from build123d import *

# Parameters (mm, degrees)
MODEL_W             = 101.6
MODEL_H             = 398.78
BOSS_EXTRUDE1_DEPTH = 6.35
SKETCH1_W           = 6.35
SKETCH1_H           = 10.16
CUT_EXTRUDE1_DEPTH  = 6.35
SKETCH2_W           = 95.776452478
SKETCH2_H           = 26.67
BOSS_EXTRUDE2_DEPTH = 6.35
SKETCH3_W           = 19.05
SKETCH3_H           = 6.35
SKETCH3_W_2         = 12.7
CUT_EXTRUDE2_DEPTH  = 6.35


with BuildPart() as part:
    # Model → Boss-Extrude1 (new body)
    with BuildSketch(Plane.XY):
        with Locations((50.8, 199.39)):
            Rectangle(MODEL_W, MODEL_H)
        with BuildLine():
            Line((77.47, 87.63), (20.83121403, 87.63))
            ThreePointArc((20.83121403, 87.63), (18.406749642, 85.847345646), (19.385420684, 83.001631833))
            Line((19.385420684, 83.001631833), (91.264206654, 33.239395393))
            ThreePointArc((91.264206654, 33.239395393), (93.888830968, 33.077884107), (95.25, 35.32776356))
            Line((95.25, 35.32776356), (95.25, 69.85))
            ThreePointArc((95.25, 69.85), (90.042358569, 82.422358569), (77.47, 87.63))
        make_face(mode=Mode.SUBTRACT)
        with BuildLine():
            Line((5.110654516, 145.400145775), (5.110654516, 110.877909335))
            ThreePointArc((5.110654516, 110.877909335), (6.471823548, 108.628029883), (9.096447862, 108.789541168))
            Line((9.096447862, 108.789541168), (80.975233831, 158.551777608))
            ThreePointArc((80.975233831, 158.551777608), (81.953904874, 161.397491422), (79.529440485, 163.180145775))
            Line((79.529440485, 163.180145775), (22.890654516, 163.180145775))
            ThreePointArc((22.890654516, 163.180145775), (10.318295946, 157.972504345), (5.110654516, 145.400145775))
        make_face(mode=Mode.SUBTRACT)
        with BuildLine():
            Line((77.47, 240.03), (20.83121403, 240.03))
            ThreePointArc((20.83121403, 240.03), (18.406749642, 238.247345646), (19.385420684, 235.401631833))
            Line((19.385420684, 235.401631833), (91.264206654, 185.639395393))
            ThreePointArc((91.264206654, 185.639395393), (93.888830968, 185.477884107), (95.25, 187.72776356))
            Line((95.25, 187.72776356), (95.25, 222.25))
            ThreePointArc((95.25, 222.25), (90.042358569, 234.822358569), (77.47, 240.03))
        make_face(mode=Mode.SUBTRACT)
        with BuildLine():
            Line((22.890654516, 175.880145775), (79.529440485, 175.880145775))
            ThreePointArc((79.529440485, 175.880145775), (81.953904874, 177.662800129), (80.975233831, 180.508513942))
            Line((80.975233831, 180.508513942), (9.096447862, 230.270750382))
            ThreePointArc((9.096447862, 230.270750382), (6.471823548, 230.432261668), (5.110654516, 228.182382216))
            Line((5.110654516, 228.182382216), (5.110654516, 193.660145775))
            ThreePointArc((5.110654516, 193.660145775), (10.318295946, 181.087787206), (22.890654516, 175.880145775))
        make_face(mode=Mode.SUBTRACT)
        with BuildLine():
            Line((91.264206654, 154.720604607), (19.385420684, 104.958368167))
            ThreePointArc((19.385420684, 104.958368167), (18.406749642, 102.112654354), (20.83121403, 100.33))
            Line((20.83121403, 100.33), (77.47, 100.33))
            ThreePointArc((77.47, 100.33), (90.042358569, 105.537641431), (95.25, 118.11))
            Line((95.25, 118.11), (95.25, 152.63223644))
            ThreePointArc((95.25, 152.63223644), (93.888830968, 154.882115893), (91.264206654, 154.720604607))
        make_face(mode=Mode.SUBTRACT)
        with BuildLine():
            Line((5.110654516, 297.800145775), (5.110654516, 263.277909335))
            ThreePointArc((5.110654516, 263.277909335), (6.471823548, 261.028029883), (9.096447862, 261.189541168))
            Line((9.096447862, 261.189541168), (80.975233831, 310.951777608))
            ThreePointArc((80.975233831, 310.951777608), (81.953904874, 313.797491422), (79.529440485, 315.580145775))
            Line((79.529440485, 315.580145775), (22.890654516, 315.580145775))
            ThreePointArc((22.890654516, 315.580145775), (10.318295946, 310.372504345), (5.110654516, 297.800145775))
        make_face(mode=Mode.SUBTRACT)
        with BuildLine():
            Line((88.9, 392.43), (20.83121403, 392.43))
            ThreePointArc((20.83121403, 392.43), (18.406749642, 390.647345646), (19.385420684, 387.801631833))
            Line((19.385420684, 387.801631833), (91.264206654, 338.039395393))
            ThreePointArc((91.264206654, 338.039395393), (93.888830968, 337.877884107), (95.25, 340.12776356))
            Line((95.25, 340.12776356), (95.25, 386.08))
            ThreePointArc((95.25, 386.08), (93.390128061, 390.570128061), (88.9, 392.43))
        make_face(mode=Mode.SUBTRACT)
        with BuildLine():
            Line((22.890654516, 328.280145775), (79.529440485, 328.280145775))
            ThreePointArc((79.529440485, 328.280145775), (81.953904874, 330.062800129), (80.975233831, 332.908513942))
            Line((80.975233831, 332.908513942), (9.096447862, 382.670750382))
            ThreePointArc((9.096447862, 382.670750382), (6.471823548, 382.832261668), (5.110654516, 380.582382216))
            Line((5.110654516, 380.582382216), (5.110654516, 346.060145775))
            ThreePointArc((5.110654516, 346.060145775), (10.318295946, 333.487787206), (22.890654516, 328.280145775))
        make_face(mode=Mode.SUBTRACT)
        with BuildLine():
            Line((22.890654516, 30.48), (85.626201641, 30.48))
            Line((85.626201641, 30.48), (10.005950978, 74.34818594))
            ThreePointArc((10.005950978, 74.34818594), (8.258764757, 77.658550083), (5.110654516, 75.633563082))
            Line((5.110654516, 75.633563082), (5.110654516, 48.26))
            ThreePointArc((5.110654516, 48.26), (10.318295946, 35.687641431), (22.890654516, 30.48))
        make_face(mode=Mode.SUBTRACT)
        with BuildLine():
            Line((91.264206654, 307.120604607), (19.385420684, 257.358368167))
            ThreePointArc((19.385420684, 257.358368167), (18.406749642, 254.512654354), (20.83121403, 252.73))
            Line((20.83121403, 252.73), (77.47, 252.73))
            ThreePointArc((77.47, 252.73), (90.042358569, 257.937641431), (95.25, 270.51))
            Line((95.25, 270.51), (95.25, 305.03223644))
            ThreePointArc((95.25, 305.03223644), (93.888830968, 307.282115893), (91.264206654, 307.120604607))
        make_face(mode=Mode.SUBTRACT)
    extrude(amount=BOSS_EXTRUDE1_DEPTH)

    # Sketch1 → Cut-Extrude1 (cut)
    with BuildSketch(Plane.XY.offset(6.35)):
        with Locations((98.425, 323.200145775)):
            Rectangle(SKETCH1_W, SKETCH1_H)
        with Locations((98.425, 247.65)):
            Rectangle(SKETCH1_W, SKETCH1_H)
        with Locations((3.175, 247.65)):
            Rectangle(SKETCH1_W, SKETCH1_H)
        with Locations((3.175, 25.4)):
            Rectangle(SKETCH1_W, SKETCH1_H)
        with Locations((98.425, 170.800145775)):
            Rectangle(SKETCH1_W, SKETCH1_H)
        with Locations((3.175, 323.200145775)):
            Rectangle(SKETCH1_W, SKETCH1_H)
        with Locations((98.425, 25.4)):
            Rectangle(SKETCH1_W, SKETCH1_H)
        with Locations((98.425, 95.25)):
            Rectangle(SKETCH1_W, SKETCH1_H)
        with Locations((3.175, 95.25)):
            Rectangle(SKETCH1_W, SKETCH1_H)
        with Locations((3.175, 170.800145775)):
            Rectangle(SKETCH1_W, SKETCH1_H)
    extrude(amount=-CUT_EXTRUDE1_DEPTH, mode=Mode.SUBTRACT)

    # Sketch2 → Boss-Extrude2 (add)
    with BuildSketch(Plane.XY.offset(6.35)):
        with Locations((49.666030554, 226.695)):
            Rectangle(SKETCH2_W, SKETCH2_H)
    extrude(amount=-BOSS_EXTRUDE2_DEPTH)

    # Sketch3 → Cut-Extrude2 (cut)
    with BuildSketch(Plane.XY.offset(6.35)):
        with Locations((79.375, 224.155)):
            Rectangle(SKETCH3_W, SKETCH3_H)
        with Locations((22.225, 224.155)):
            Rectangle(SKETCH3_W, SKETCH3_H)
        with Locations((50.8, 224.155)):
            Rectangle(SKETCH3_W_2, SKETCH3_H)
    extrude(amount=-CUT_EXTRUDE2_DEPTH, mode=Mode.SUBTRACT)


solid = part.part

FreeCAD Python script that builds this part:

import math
import FreeCAD as App
import Part
import Sketcher
Q = App.Units.Quantity

doc = App.newDocument("Part")
params = doc.addObject("Spreadsheet::Sheet", "Params")
for row, (alias, value) in enumerate([
    ("sketch1_radius", "0.7 in"),
    ("sketch1_radius2", "0.1 in"),
    ("sketch1_width", "4 in"),
    ("sketch1_radius3", "0.25 in"),
    ("sketch1_height", "15.7 in"),
    ("pad1_length", "0.25 in"),
    ("sketch2_height", "0.4 in"),
    ("sketch2_width", "0.25 in"),
    ("pocket1_length", "0.25 in"),
    ("sketch3_height", "1.05 in"),
    ("pad2_length", "0.25 in"),
    ("sketch4_width", "0.5 in"),
    ("sketch4_height", "0.25 in"),
    ("pocket2_length", "0.25 in"),
], start=1):
    params.set(f"A{row}", alias)
    params.set(f"B{row}", "=" + value)
    params.setAlias(f"B{row}", alias)

body = doc.addObject("PartDesign::Body", "Body")

# Sketch on XY plane
sketch1 = body.newObject("Sketcher::SketchObject", "Sketch")
sketch1.AttachmentSupport = (doc.getObject("XY_Plane"), [""])
sketch1.MapMode = "FlatFace"
sketch1.addGeometry([
    Part.LineSegment(App.Vector(0, 398.8, 0), App.Vector(0, 0, 0)),  # 0
    Part.LineSegment(App.Vector(0, 0, 0), App.Vector(101.6, 0, 0)),  # 1
    Part.LineSegment(App.Vector(101.6, 0, 0), App.Vector(101.6, 398.8, 0)),  # 2
    Part.LineSegment(App.Vector(101.6, 398.8, 0), App.Vector(0, 398.8, 0)),  # 3
    Part.LineSegment(App.Vector(85.6, 30.5, 0), App.Vector(22.9, 30.5, 0)),  # 4
    Part.ArcOfCircle(Part.Circle(App.Vector(22.9, 48.3, 0), App.Vector(0, 0, 1), 17.8), math.radians(180), math.radians(270)),  # 5
    Part.LineSegment(App.Vector(5.1, 48.3, 0), App.Vector(5.1, 75.6, 0)),  # 6
    Part.ArcOfCircle(Part.Circle(App.Vector(7.6, 75.2, 0), App.Vector(0, 0, 1), 2.5), math.radians(-20), math.radians(170)),  # 7
    Part.LineSegment(App.Vector(10, 74.3, 0), App.Vector(85.6, 30.5, 0)),  # 8
    Part.LineSegment(App.Vector(5.1, 110.9, 0), App.Vector(5.1, 145.4, 0)),  # 9
    Part.ArcOfCircle(Part.Circle(App.Vector(22.9, 145.4, 0), App.Vector(0, 0, 1), 17.8), math.radians(90), math.radians(180)),  # 10
    Part.LineSegment(App.Vector(22.9, 163.2, 0), App.Vector(79.5, 163.2, 0)),  # 11
    Part.ArcOfCircle(Part.Circle(App.Vector(79.5, 160.6, 0), App.Vector(0, 0, 1), 2.5), math.radians(-55), math.radians(90)),  # 12
    Part.LineSegment(App.Vector(81, 158.6, 0), App.Vector(9.1, 108.8, 0)),  # 13
    Part.ArcOfCircle(Part.Circle(App.Vector(7.7, 110.9, 0), App.Vector(0, 0, 1), 2.5), math.radians(180), math.radians(305)),  # 14
    Part.LineSegment(App.Vector(79.5, 175.9, 0), App.Vector(22.9, 175.9, 0)),  # 15
    Part.ArcOfCircle(Part.Circle(App.Vector(22.9, 193.7, 0), App.Vector(0, 0, 1), 17.8), math.radians(180), math.radians(270)),  # 16
    Part.LineSegment(App.Vector(5.1, 193.7, 0), App.Vector(5.1, 228.2, 0)),  # 17
    Part.ArcOfCircle(Part.Circle(App.Vector(7.7, 228.2, 0), App.Vector(0, 0, 1), 2.5), math.radians(55), math.radians(180)),  # 18
    Part.LineSegment(App.Vector(9.1, 230.3, 0), App.Vector(81, 180.5, 0)),  # 19
    Part.ArcOfCircle(Part.Circle(App.Vector(79.5, 178.4, 0), App.Vector(0, 0, 1), 2.5), math.radians(-90), math.radians(55)),  # 20
    Part.LineSegment(App.Vector(20.8, 87.6, 0), App.Vector(77.5, 87.6, 0)),  # 21
    Part.ArcOfCircle(Part.Circle(App.Vector(77.5, 69.8, 0), App.Vector(0, 0, 1), 17.8), math.radians(0), math.radians(90)),  # 22
    Part.LineSegment(App.Vector(95.2, 69.8, 0), App.Vector(95.2, 35.3, 0)),  # 23
    Part.ArcOfCircle(Part.Circle(App.Vector(92.7, 35.3, 0), App.Vector(0, 0, 1), 2.5), math.radians(-125), math.radians(0)),  # 24
    Part.LineSegment(App.Vector(91.3, 33.2, 0), App.Vector(19.4, 83, 0)),  # 25
    Part.ArcOfCircle(Part.Circle(App.Vector(20.8, 85.1, 0), App.Vector(0, 0, 1), 2.5), math.radians(90), math.radians(235)),  # 26
    Part.LineSegment(App.Vector(19.4, 105, 0), App.Vector(91.3, 154.7, 0)),  # 27
    Part.ArcOfCircle(Part.Circle(App.Vector(92.7, 152.6, 0), App.Vector(0, 0, 1), 2.5), math.radians(0), math.radians(125)),  # 28
    Part.LineSegment(App.Vector(95.2, 152.6, 0), App.Vector(95.2, 118.1, 0)),  # 29
    Part.ArcOfCircle(Part.Circle(App.Vector(77.5, 118.1, 0), App.Vector(0, 0, 1), 17.8), math.radians(-90), math.radians(0)),  # 30
    Part.LineSegment(App.Vector(77.5, 100.3, 0), App.Vector(20.8, 100.3, 0)),  # 31
    Part.ArcOfCircle(Part.Circle(App.Vector(20.8, 102.9, 0), App.Vector(0, 0, 1), 2.5), math.radians(125), math.radians(270)),  # 32
    Part.LineSegment(App.Vector(5.1, 263.3, 0), App.Vector(5.1, 297.8, 0)),  # 33
    Part.ArcOfCircle(Part.Circle(App.Vector(22.9, 297.8, 0), App.Vector(0, 0, 1), 17.8), math.radians(90), math.radians(180)),  # 34
    Part.LineSegment(App.Vector(22.9, 315.6, 0), App.Vector(79.5, 315.6, 0)),  # 35
    Part.ArcOfCircle(Part.Circle(App.Vector(79.5, 313, 0), App.Vector(0, 0, 1), 2.5), math.radians(-55), math.radians(90)),  # 36
    Part.LineSegment(App.Vector(81, 311, 0), App.Vector(9.1, 261.2, 0)),  # 37
    Part.ArcOfCircle(Part.Circle(App.Vector(7.7, 263.3, 0), App.Vector(0, 0, 1), 2.5), math.radians(180), math.radians(305)),  # 38
    Part.LineSegment(App.Vector(79.5, 328.3, 0), App.Vector(22.9, 328.3, 0)),  # 39
    Part.ArcOfCircle(Part.Circle(App.Vector(22.9, 346.1, 0), App.Vector(0, 0, 1), 17.8), math.radians(180), math.radians(270)),  # 40
    Part.LineSegment(App.Vector(5.1, 346.1, 0), App.Vector(5.1, 380.6, 0)),  # 41
    Part.ArcOfCircle(Part.Circle(App.Vector(7.7, 380.6, 0), App.Vector(0, 0, 1), 2.5), math.radians(55), math.radians(180)),  # 42
    Part.LineSegment(App.Vector(9.1, 382.7, 0), App.Vector(81, 332.9, 0)),  # 43
    Part.ArcOfCircle(Part.Circle(App.Vector(79.5, 330.8, 0), App.Vector(0, 0, 1), 2.5), math.radians(-90), math.radians(55)),  # 44
    Part.LineSegment(App.Vector(20.8, 240, 0), App.Vector(77.5, 240, 0)),  # 45
    Part.ArcOfCircle(Part.Circle(App.Vector(77.5, 222.2, 0), App.Vector(0, 0, 1), 17.8), math.radians(0), math.radians(90)),  # 46
    Part.LineSegment(App.Vector(95.2, 222.2, 0), App.Vector(95.2, 187.7, 0)),  # 47
    Part.ArcOfCircle(Part.Circle(App.Vector(92.7, 187.7, 0), App.Vector(0, 0, 1), 2.5), math.radians(-125), math.radians(0)),  # 48
    Part.LineSegment(App.Vector(91.3, 185.6, 0), App.Vector(19.4, 235.4, 0)),  # 49
    Part.ArcOfCircle(Part.Circle(App.Vector(20.8, 237.5, 0), App.Vector(0, 0, 1), 2.5), math.radians(90), math.radians(235)),  # 50
    Part.LineSegment(App.Vector(19.4, 257.4, 0), App.Vector(91.3, 307.1, 0)),  # 51
    Part.ArcOfCircle(Part.Circle(App.Vector(92.7, 305, 0), App.Vector(0, 0, 1), 2.5), math.radians(0), math.radians(125)),  # 52
    Part.LineSegment(App.Vector(95.2, 305, 0), App.Vector(95.2, 270.5, 0)),  # 53
    Part.ArcOfCircle(Part.Circle(App.Vector(77.5, 270.5, 0), App.Vector(0, 0, 1), 17.8), math.radians(-90), math.radians(0)),  # 54
    Part.LineSegment(App.Vector(77.5, 252.7, 0), App.Vector(20.8, 252.7, 0)),  # 55
    Part.ArcOfCircle(Part.Circle(App.Vector(20.8, 255.3, 0), App.Vector(0, 0, 1), 2.5), math.radians(125), math.radians(270)),  # 56
    Part.LineSegment(App.Vector(20.8, 392.4, 0), App.Vector(88.9, 392.4, 0)),  # 57
    Part.ArcOfCircle(Part.Circle(App.Vector(88.9, 386.1, 0), App.Vector(0, 0, 1), 6.3), math.radians(0), math.radians(90)),  # 58
    Part.LineSegment(App.Vector(95.2, 386.1, 0), App.Vector(95.2, 340.1, 0)),  # 59
    Part.ArcOfCircle(Part.Circle(App.Vector(92.7, 340.1, 0), App.Vector(0, 0, 1), 2.5), math.radians(-125), math.radians(0)),  # 60
    Part.LineSegment(App.Vector(91.3, 338, 0), App.Vector(19.4, 387.8, 0)),  # 61
    Part.ArcOfCircle(Part.Circle(App.Vector(20.8, 389.9, 0), App.Vector(0, 0, 1), 2.5), math.radians(90), math.radians(235)),  # 62
], False)
sketch1.addConstraint([
    Sketcher.Constraint("Coincident", 0, 2, 1, 1),
    Sketcher.Constraint("Coincident", 1, 2, 2, 1),
    Sketcher.Constraint("Coincident", 2, 2, 3, 1),
    Sketcher.Constraint("Coincident", 3, 2, 0, 1),
    Sketcher.Constraint("Tangent", 4, 2, 5, 2),
    Sketcher.Constraint("Tangent", 5, 1, 6, 1),
    Sketcher.Constraint("Coincident", 6, 2, 7, 2),
    Sketcher.Constraint("Coincident", 7, 1, 8, 1),
    Sketcher.Constraint("Coincident", 8, 2, 4, 1),
    Sketcher.Constraint("Tangent", 9, 2, 10, 2),
    Sketcher.Constraint("Tangent", 10, 1, 11, 1),
    Sketcher.Constraint("Tangent", 11, 2, 12, 2),
    Sketcher.Constraint("Tangent", 12, 1, 13, 1),
    Sketcher.Constraint("Tangent", 13, 2, 14, 2),
    Sketcher.Constraint("Tangent", 14, 1, 9, 1),
    Sketcher.Constraint("Tangent", 15, 2, 16, 2),
    Sketcher.Constraint("Tangent", 16, 1, 17, 1),
    Sketcher.Constraint("Tangent", 17, 2, 18, 2),
    Sketcher.Constraint("Tangent", 18, 1, 19, 1),
    Sketcher.Constraint("Tangent", 19, 2, 20, 2),
    Sketcher.Constraint("Tangent", 20, 1, 15, 1),
    Sketcher.Constraint("Tangent", 21, 2, 22, 2),
    Sketcher.Constraint("Tangent", 22, 1, 23, 1),
    Sketcher.Constraint("Tangent", 23, 2, 24, 2),
    Sketcher.Constraint("Tangent", 24, 1, 25, 1),
    Sketcher.Constraint("Tangent", 25, 2, 26, 2),
    Sketcher.Constraint("Tangent", 26, 1, 21, 1),
    Sketcher.Constraint("Tangent", 27, 2, 28, 2),
    Sketcher.Constraint("Tangent", 28, 1, 29, 1),
    Sketcher.Constraint("Tangent", 29, 2, 30, 2),
    Sketcher.Constraint("Tangent", 30, 1, 31, 1),
    Sketcher.Constraint("Tangent", 31, 2, 32, 2),
    Sketcher.Constraint("Tangent", 32, 1, 27, 1),
    Sketcher.Constraint("Tangent", 33, 2, 34, 2),
    Sketcher.Constraint("Tangent", 34, 1, 35, 1),
    Sketcher.Constraint("Tangent", 35, 2, 36, 2),
    Sketcher.Constraint("Tangent", 36, 1, 37, 1),
    Sketcher.Constraint("Tangent", 37, 2, 38, 2),
    Sketcher.Constraint("Tangent", 38, 1, 33, 1),
    Sketcher.Constraint("Tangent", 39, 2, 40, 2),
    Sketcher.Constraint("Tangent", 40, 1, 41, 1),
    Sketcher.Constraint("Tangent", 41, 2, 42, 2),
    Sketcher.Constraint("Tangent", 42, 1, 43, 1),
    Sketcher.Constraint("Tangent", 43, 2, 44, 2),
    Sketcher.Constraint("Tangent", 44, 1, 39, 1),
    Sketcher.Constraint("Tangent", 45, 2, 46, 2),
    Sketcher.Constraint("Tangent", 46, 1, 47, 1),
    Sketcher.Constraint("Tangent", 47, 2, 48, 2),
    Sketcher.Constraint("Tangent", 48, 1, 49, 1),
    Sketcher.Constraint("Tangent", 49, 2, 50, 2),
    Sketcher.Constraint("Tangent", 50, 1, 45, 1),
    Sketcher.Constraint("Tangent", 51, 2, 52, 2),
    Sketcher.Constraint("Tangent", 52, 1, 53, 1),
    Sketcher.Constraint("Tangent", 53, 2, 54, 2),
    Sketcher.Constraint("Tangent", 54, 1, 55, 1),
    Sketcher.Constraint("Tangent", 55, 2, 56, 2),
    Sketcher.Constraint("Tangent", 56, 1, 51, 1),
    Sketcher.Constraint("Tangent", 57, 2, 58, 2),
    Sketcher.Constraint("Tangent", 58, 1, 59, 1),
    Sketcher.Constraint("Tangent", 59, 2, 60, 2),
    Sketcher.Constraint("Tangent", 60, 1, 61, 1),
    Sketcher.Constraint("Tangent", 61, 2, 62, 2),
    Sketcher.Constraint("Tangent", 62, 1, 57, 1),
    Sketcher.Constraint("Vertical", 0),
    Sketcher.Constraint("Horizontal", 1),
    Sketcher.Constraint("Vertical", 2),
    Sketcher.Constraint("Horizontal", 3),
    Sketcher.Constraint("Horizontal", 4),
    Sketcher.Constraint("Vertical", 6),
    Sketcher.Constraint("Vertical", 9),
    Sketcher.Constraint("Horizontal", 11),
    Sketcher.Constraint("Horizontal", 15),
    Sketcher.Constraint("Vertical", 17),
    Sketcher.Constraint("Horizontal", 21),
    Sketcher.Constraint("Vertical", 23),
    Sketcher.Constraint("Vertical", 29),
    Sketcher.Constraint("Horizontal", 31),
    Sketcher.Constraint("Vertical", 33),
    Sketcher.Constraint("Horizontal", 35),
    Sketcher.Constraint("Horizontal", 39),
    Sketcher.Constraint("Vertical", 41),
    Sketcher.Constraint("Horizontal", 45),
    Sketcher.Constraint("Vertical", 47),
    Sketcher.Constraint("Vertical", 53),
    Sketcher.Constraint("Horizontal", 55),
    Sketcher.Constraint("Horizontal", 57),
    Sketcher.Constraint("Vertical", 59),
    Sketcher.Constraint("Coincident", 0, 2, -1, 1),
    Sketcher.Constraint("Equal", 5, 10),
    Sketcher.Constraint("Equal", 7, 12),
    Sketcher.Constraint("Equal", 12, 14),
    Sketcher.Constraint("Equal", 10, 16),
    Sketcher.Constraint("Equal", 14, 18),
    Sketcher.Constraint("Equal", 18, 20),
    Sketcher.Constraint("Equal", 16, 22),
    Sketcher.Constraint("Equal", 20, 24),
    Sketcher.Constraint("Equal", 24, 26),
    Sketcher.Constraint("Equal", 26, 28),
    Sketcher.Constraint("Equal", 22, 30),
    Sketcher.Constraint("Equal", 28, 32),
    Sketcher.Constraint("Equal", 30, 34),
    Sketcher.Constraint("Equal", 32, 36),
    Sketcher.Constraint("Equal", 36, 38),
    Sketcher.Constraint("Equal", 34, 40),
    Sketcher.Constraint("Equal", 38, 42),
    Sketcher.Constraint("Equal", 42, 44),
    Sketcher.Constraint("Equal", 40, 46),
    Sketcher.Constraint("Equal", 44, 48),
    Sketcher.Constraint("Equal", 48, 50),
    Sketcher.Constraint("Equal", 50, 52),
    Sketcher.Constraint("Equal", 46, 54),
    Sketcher.Constraint("Equal", 52, 56),
    Sketcher.Constraint("Equal", 56, 60),
    Sketcher.Constraint("Equal", 60, 62),
    Sketcher.Constraint("Parallel", 19, 25),
    Sketcher.Constraint("Parallel", 13, 27),
    Sketcher.Constraint("Parallel", 27, 37),
    Sketcher.Constraint("Parallel", 25, 43),
    Sketcher.Constraint("Parallel", 43, 49),
    Sketcher.Constraint("Parallel", 37, 51),
    Sketcher.Constraint("Parallel", 49, 61),
    Sketcher.Constraint("Vertical", 5, 3, 10, 3),
    Sketcher.Constraint("Vertical", 10, 3, 16, 3),
    Sketcher.Constraint("Vertical", 12, 3, 20, 3),
    Sketcher.Constraint("Vertical", 24, 3, 28, 3),
    Sketcher.Constraint("Vertical", 26, 3, 32, 3),
    Sketcher.Constraint("Vertical", 16, 3, 34, 3),
    Sketcher.Constraint("Vertical", 20, 3, 36, 3),
    Sketcher.Constraint("Vertical", 34, 3, 40, 3),
    Sketcher.Constraint("Vertical", 36, 3, 44, 3),
    Sketcher.Constraint("Vertical", 30, 3, 46, 3),
    Sketcher.Constraint("Vertical", 32, 3, 50, 3),
    Sketcher.Constraint("Vertical", 48, 3, 52, 3),
    Sketcher.Constraint("Vertical", 50, 3, 56, 3),
    Sketcher.Constraint("Vertical", 52, 3, 60, 3),
    Sketcher.Constraint("Vertical", 56, 3, 62, 3),
    Sketcher.Constraint("Vertical", 13, 2, 18, 1),
    Sketcher.Constraint("Equal", 15, 21),
    Sketcher.Constraint("Equal", 8, 13),
    Sketcher.Constraint("Radius", 5, Q("0.7 in")),
    Sketcher.Constraint("Radius", 7, Q("0.1 in")),
    Sketcher.Constraint("DistanceX", 1, 1, 1, 2, Q("4 in")),
    Sketcher.Constraint("Radius", 58, Q("0.25 in")),
    Sketcher.Constraint("DistanceY", 0, 2, 0, 1, Q("15.7 in")),
    Sketcher.Constraint("DistanceY", -1, 1, 5, 3, Q("1.9 in")),
    Sketcher.Constraint("DistanceX", -1, 1, 58, 3, Q("3.5 in")),
    Sketcher.Constraint("DistanceY", -1, 1, 58, 3, Q("15.2 in")),
    Sketcher.Constraint("DistanceY", -1, 1, 22, 3, Q("2.75 in")),
    Sketcher.Constraint("DistanceY", -1, 1, 30, 3, Q("4.65 in")),
    Sketcher.Constraint("DistanceY", -1, 1, 46, 3, Q("8.75 in")),
    Sketcher.Constraint("DistanceY", -1, 1, 54, 3, Q("10.65 in")),
    Sketcher.Constraint("DistanceX", -1, 1, 8, 2, Q("85.626202 mm")),
    Sketcher.Constraint("Distance", 8, Q("87.423338 mm")),
    Sketcher.Constraint("DistanceX", 4, 2, 4, 1, Q("62.735547 mm")),
    Sketcher.Constraint("DistanceX", 11, 1, 11, 2, Q("56.638786 mm")),
    Sketcher.Constraint("DistanceY", 6, 1, 6, 2, Q("27.373563 mm")),
    Sketcher.Constraint("DistanceY", -1, 1, 7, 3, Q("75.201828 mm")),
    Sketcher.Constraint("DistanceY", -1, 1, 14, 3, Q("110.877909 mm")),
    Sketcher.Constraint("DistanceY", -1, 1, 38, 3, Q("263.277909 mm")),
    Sketcher.Constraint("DistanceY", -1, 1, 18, 1, Q("230.27075 mm")),
    Sketcher.Constraint("DistanceY", -1, 1, 42, 1, Q("382.67075 mm")),
])
sketch1.setExpression("Constraints[139]", "Params.sketch1_radius")
sketch1.setExpression("Constraints[140]", "Params.sketch1_radius2")
sketch1.setExpression("Constraints[141]", "Params.sketch1_width")
sketch1.setExpression("Constraints[142]", "Params.sketch1_radius3")
sketch1.setExpression("Constraints[143]", "Params.sketch1_height")
pad1 = body.newObject("PartDesign::Pad", "Pad")
pad1.Profile = sketch1
pad1.setExpression("Length", "Params.pad1_length")

# Sketch on XY plane
sketch2 = body.newObject("Sketcher::SketchObject", "Sketch001")
sketch2.AttachmentSupport = (doc.getObject("XY_Plane"), [""])
sketch2.MapMode = "FlatFace"
sketch2.AttachmentOffset = App.Placement(App.Vector(0, 0, 0.25 * 25.4), App.Rotation())
sketch2.addGeometry([
    Part.LineSegment(App.Vector(95, 328, 0), App.Vector(95, 318, 0)),  # 0
    Part.LineSegment(App.Vector(95, 318, 0), App.Vector(102, 318, 0)),  # 1
    Part.LineSegment(App.Vector(102, 318, 0), App.Vector(102, 328, 0)),  # 2
    Part.LineSegment(App.Vector(102, 328, 0), App.Vector(95, 328, 0)),  # 3
    Part.LineSegment(App.Vector(95, 253, 0), App.Vector(95, 243, 0)),  # 4
    Part.LineSegment(App.Vector(95, 243, 0), App.Vector(102, 243, 0)),  # 5
    Part.LineSegment(App.Vector(102, 243, 0), App.Vector(102, 253, 0)),  # 6
    Part.LineSegment(App.Vector(102, 253, 0), App.Vector(95, 253, 0)),  # 7
    Part.LineSegment(App.Vector(0, 253, 0), App.Vector(0, 243, 0)),  # 8
    Part.LineSegment(App.Vector(0, 243, 0), App.Vector(6, 243, 0)),  # 9
    Part.LineSegment(App.Vector(6, 243, 0), App.Vector(6, 253, 0)),  # 10
    Part.LineSegment(App.Vector(6, 253, 0), App.Vector(0, 253, 0)),  # 11
    Part.LineSegment(App.Vector(0, 30, 0), App.Vector(0, 20, 0)),  # 12
    Part.LineSegment(App.Vector(0, 20, 0), App.Vector(6, 20, 0)),  # 13
    Part.LineSegment(App.Vector(6, 20, 0), App.Vector(6, 30, 0)),  # 14
    Part.LineSegment(App.Vector(6, 30, 0), App.Vector(0, 30, 0)),  # 15
    Part.LineSegment(App.Vector(95, 176, 0), App.Vector(95, 166, 0)),  # 16
    Part.LineSegment(App.Vector(95, 166, 0), App.Vector(102, 166, 0)),  # 17
    Part.LineSegment(App.Vector(102, 166, 0), App.Vector(102, 176, 0)),  # 18
    Part.LineSegment(App.Vector(102, 176, 0), App.Vector(95, 176, 0)),  # 19
    Part.LineSegment(App.Vector(0, 328, 0), App.Vector(0, 318, 0)),  # 20
    Part.LineSegment(App.Vector(0, 318, 0), App.Vector(6, 318, 0)),  # 21
    Part.LineSegment(App.Vector(6, 318, 0), App.Vector(6, 328, 0)),  # 22
    Part.LineSegment(App.Vector(6, 328, 0), App.Vector(0, 328, 0)),  # 23
    Part.LineSegment(App.Vector(95, 30, 0), App.Vector(95, 20, 0)),  # 24
    Part.LineSegment(App.Vector(95, 20, 0), App.Vector(102, 20, 0)),  # 25
    Part.LineSegment(App.Vector(102, 20, 0), App.Vector(102, 30, 0)),  # 26
    Part.LineSegment(App.Vector(102, 30, 0), App.Vector(95, 30, 0)),  # 27
    Part.LineSegment(App.Vector(95, 100, 0), App.Vector(95, 90, 0)),  # 28
    Part.LineSegment(App.Vector(95, 90, 0), App.Vector(102, 90, 0)),  # 29
    Part.LineSegment(App.Vector(102, 90, 0), App.Vector(102, 100, 0)),  # 30
    Part.LineSegment(App.Vector(102, 100, 0), App.Vector(95, 100, 0)),  # 31
    Part.LineSegment(App.Vector(0, 100, 0), App.Vector(0, 90, 0)),  # 32
    Part.LineSegment(App.Vector(0, 90, 0), App.Vector(6, 90, 0)),  # 33
    Part.LineSegment(App.Vector(6, 90, 0), App.Vector(6, 100, 0)),  # 34
    Part.LineSegment(App.Vector(6, 100, 0), App.Vector(0, 100, 0)),  # 35
    Part.LineSegment(App.Vector(0, 176, 0), App.Vector(0, 166, 0)),  # 36
    Part.LineSegment(App.Vector(0, 166, 0), App.Vector(6, 166, 0)),  # 37
    Part.LineSegment(App.Vector(6, 166, 0), App.Vector(6, 176, 0)),  # 38
    Part.LineSegment(App.Vector(6, 176, 0), App.Vector(0, 176, 0)),  # 39
], False)
sketch2.addConstraint([
    Sketcher.Constraint("Coincident", 0, 2, 1, 1),
    Sketcher.Constraint("Coincident", 1, 2, 2, 1),
    Sketcher.Constraint("Coincident", 2, 2, 3, 1),
    Sketcher.Constraint("Coincident", 3, 2, 0, 1),
    Sketcher.Constraint("Coincident", 4, 2, 5, 1),
    Sketcher.Constraint("Coincident", 5, 2, 6, 1),
    Sketcher.Constraint("Coincident", 6, 2, 7, 1),
    Sketcher.Constraint("Coincident", 7, 2, 4, 1),
    Sketcher.Constraint("Coincident", 8, 2, 9, 1),
    Sketcher.Constraint("Coincident", 9, 2, 10, 1),
    Sketcher.Constraint("Coincident", 10, 2, 11, 1),
    Sketcher.Constraint("Coincident", 11, 2, 8, 1),
    Sketcher.Constraint("Coincident", 12, 2, 13, 1),
    Sketcher.Constraint("Coincident", 13, 2, 14, 1),
    Sketcher.Constraint("Coincident", 14, 2, 15, 1),
    Sketcher.Constraint("Coincident", 15, 2, 12, 1),
    Sketcher.Constraint("Coincident", 16, 2, 17, 1),
    Sketcher.Constraint("Coincident", 17, 2, 18, 1),
    Sketcher.Constraint("Coincident", 18, 2, 19, 1),
    Sketcher.Constraint("Coincident", 19, 2, 16, 1),
    Sketcher.Constraint("Coincident", 20, 2, 21, 1),
    Sketcher.Constraint("Coincident", 21, 2, 22, 1),
    Sketcher.Constraint("Coincident", 22, 2, 23, 1),
    Sketcher.Constraint("Coincident", 23, 2, 20, 1),
    Sketcher.Constraint("Coincident", 24, 2, 25, 1),
    Sketcher.Constraint("Coincident", 25, 2, 26, 1),
    Sketcher.Constraint("Coincident", 26, 2, 27, 1),
    Sketcher.Constraint("Coincident", 27, 2, 24, 1),
    Sketcher.Constraint("Coincident", 28, 2, 29, 1),
    Sketcher.Constraint("Coincident", 29, 2, 30, 1),
    Sketcher.Constraint("Coincident", 30, 2, 31, 1),
    Sketcher.Constraint("Coincident", 31, 2, 28, 1),
    Sketcher.Constraint("Coincident", 32, 2, 33, 1),
    Sketcher.Constraint("Coincident", 33, 2, 34, 1),
    Sketcher.Constraint("Coincident", 34, 2, 35, 1),
    Sketcher.Constraint("Coincident", 35, 2, 32, 1),
    Sketcher.Constraint("Coincident", 36, 2, 37, 1),
    Sketcher.Constraint("Coincident", 37, 2, 38, 1),
    Sketcher.Constraint("Coincident", 38, 2, 39, 1),
    Sketcher.Constraint("Coincident", 39, 2, 36, 1),
    Sketcher.Constraint("Vertical", 0),
    Sketcher.Constraint("Horizontal", 1),
    Sketcher.Constraint("Vertical", 2),
    Sketcher.Constraint("Horizontal", 3),
    Sketcher.Constraint("Vertical", 4),
    Sketcher.Constraint("Horizontal", 5),
    Sketcher.Constraint("Vertical", 6),
    Sketcher.Constraint("Horizontal", 7),
    Sketcher.Constraint("Vertical", 8),
    Sketcher.Constraint("Horizontal", 9),
    Sketcher.Constraint("Vertical", 10),
    Sketcher.Constraint("Horizontal", 11),
    Sketcher.Constraint("Vertical", 12),
    Sketcher.Constraint("Horizontal", 13),
    Sketcher.Constraint("Vertical", 14),
    Sketcher.Constraint("Horizontal", 15),
    Sketcher.Constraint("Vertical", 16),
    Sketcher.Constraint("Horizontal", 17),
    Sketcher.Constraint("Vertical", 18),
    Sketcher.Constraint("Horizontal", 19),
    Sketcher.Constraint("Vertical", 20),
    Sketcher.Constraint("Horizontal", 21),
    Sketcher.Constraint("Vertical", 22),
    Sketcher.Constraint("Horizontal", 23),
    Sketcher.Constraint("Vertical", 24),
    Sketcher.Constraint("Horizontal", 25),
    Sketcher.Constraint("Vertical", 26),
    Sketcher.Constraint("Horizontal", 27),
    Sketcher.Constraint("Vertical", 28),
    Sketcher.Constraint("Horizontal", 29),
    Sketcher.Constraint("Vertical", 30),
    Sketcher.Constraint("Horizontal", 31),
    Sketcher.Constraint("Vertical", 32),
    Sketcher.Constraint("Horizontal", 33),
    Sketcher.Constraint("Vertical", 34),
    Sketcher.Constraint("Horizontal", 35),
    Sketcher.Constraint("Vertical", 36),
    Sketcher.Constraint("Horizontal", 37),
    Sketcher.Constraint("Vertical", 38),
    Sketcher.Constraint("Horizontal", 39),
    Sketcher.Constraint("PointOnObject", 8, 2, -2),
    Sketcher.Constraint("PointOnObject", 12, 2, -2),
    Sketcher.Constraint("PointOnObject", 20, 2, -2),
    Sketcher.Constraint("PointOnObject", 32, 2, -2),
    Sketcher.Constraint("PointOnObject", 36, 2, -2),
    Sketcher.Constraint("Horizontal", 5, 2, 8, 2),
    Sketcher.Constraint("Horizontal", 7, 2, 10, 2),
    Sketcher.Constraint("Horizontal", 1, 2, 20, 2),
    Sketcher.Constraint("Horizontal", 3, 2, 22, 2),
    Sketcher.Constraint("Horizontal", 13, 2, 24, 2),
    Sketcher.Constraint("Horizontal", 15, 2, 26, 2),
    Sketcher.Constraint("Horizontal", 29, 2, 32, 2),
    Sketcher.Constraint("Horizontal", 31, 2, 34, 2),
    Sketcher.Constraint("Horizontal", 17, 2, 36, 2),
    Sketcher.Constraint("Horizontal", 19, 2, 38, 2),
    Sketcher.Constraint("Vertical", 3, 2, 4, 2),
    Sketcher.Constraint("Vertical", 2, 2, 5, 2),
    Sketcher.Constraint("Vertical", 10, 2, 13, 2),
    Sketcher.Constraint("Vertical", 7, 2, 16, 2),
    Sketcher.Constraint("Vertical", 6, 2, 17, 2),
    Sketcher.Constraint("Vertical", 14, 2, 21, 2),
    Sketcher.Constraint("Vertical", 19, 2, 24, 2),
    Sketcher.Constraint("Vertical", 18, 2, 25, 2),
    Sketcher.Constraint("Vertical", 27, 2, 28, 2),
    Sketcher.Constraint("Vertical", 26, 2, 29, 2),
    Sketcher.Constraint("Vertical", 22, 2, 33, 2),
    Sketcher.Constraint("Vertical", 34, 2, 37, 2),
    Sketcher.Constraint("Equal", 7, 9),
    Sketcher.Constraint("Equal", 2, 4),
    Sketcher.Constraint("Equal", 10, 12),
    Sketcher.Constraint("Equal", 14, 16),
    Sketcher.Constraint("Equal", 26, 28),
    Sketcher.Constraint("DistanceY", 0, 2, 0, 1, Q("0.4 in")),
    Sketcher.Constraint("DistanceX", -1, 1, 1, 2, Q("4 in")),
    Sketcher.Constraint("DistanceX", 1, 1, 1, 2, Q("0.25 in")),
    Sketcher.Constraint("DistanceY", -1, 1, 12, 2, Q("0.8 in")),
    Sketcher.Constraint("DistanceY", -1, 1, 4, 2, Q("9.55 in")),
    Sketcher.Constraint("DistanceY", -1, 1, 28, 2, Q("3.55 in")),
    Sketcher.Constraint("DistanceY", -1, 1, 0, 2, Q("318.120146 mm")),
    Sketcher.Constraint("DistanceY", -1, 1, 16, 2, Q("165.720146 mm")),
])
sketch2.setExpression("Constraints[112]", "Params.sketch2_height")
sketch2.setExpression("Constraints[114]", "Params.sketch2_width")
pocket1 = body.newObject("PartDesign::Pocket", "Pocket")
pocket1.Profile = sketch2
pocket1.setExpression("Length", "Params.pocket1_length")

# Sketch on XY plane
sketch3 = body.newObject("Sketcher::SketchObject", "Sketch002")
sketch3.AttachmentSupport = (doc.getObject("XY_Plane"), [""])
sketch3.MapMode = "FlatFace"
sketch3.AttachmentOffset = App.Placement(App.Vector(0, 0, 0.25 * 25.4), App.Rotation())
sketch3.addGeometry([
    Part.LineSegment(App.Vector(2, 240, 0), App.Vector(2, 213, 0)),
    Part.LineSegment(App.Vector(2, 213, 0), App.Vector(98, 213, 0)),
    Part.LineSegment(App.Vector(98, 213, 0), App.Vector(98, 240, 0)),
    Part.LineSegment(App.Vector(98, 240, 0), App.Vector(2, 240, 0)),
], False)
sketch3.addConstraint([
    Sketcher.Constraint("Coincident", 0, 2, 1, 1),
    Sketcher.Constraint("Coincident", 1, 2, 2, 1),
    Sketcher.Constraint("Coincident", 2, 2, 3, 1),
    Sketcher.Constraint("Coincident", 3, 2, 0, 1),
    Sketcher.Constraint("Vertical", 0),
    Sketcher.Constraint("Horizontal", 1),
    Sketcher.Constraint("Vertical", 2),
    Sketcher.Constraint("Horizontal", 3),
    Sketcher.Constraint("DistanceY", 0, 2, 0, 1, Q("1.05 in")),
    Sketcher.Constraint("DistanceY", -1, 1, 0, 2, Q("8.4 in")),
    Sketcher.Constraint("DistanceX", 1, 1, 1, 2, Q("95.776452 mm")),
    Sketcher.Constraint("DistanceX", -1, 1, 0, 2, Q("1.777804 mm")),
])
sketch3.setExpression("Constraints[8]", "Params.sketch3_height")
pad2 = body.newObject("PartDesign::Pad", "Pad001")
pad2.Profile = sketch3
pad2.setExpression("Length", "Params.pad2_length")
pad2.Reversed = True

# Sketch on XY plane
sketch4 = body.newObject("Sketcher::SketchObject", "Sketch003")
sketch4.AttachmentSupport = (doc.getObject("XY_Plane"), [""])
sketch4.MapMode = "FlatFace"
sketch4.AttachmentOffset = App.Placement(App.Vector(0, 0, 0.25 * 25.4), App.Rotation())
sketch4.addGeometry([
    Part.LineSegment(App.Vector(70, 227, 0), App.Vector(70, 221, 0)),  # 0
    Part.LineSegment(App.Vector(70, 221, 0), App.Vector(89, 221, 0)),  # 1
    Part.LineSegment(App.Vector(89, 221, 0), App.Vector(89, 227, 0)),  # 2
    Part.LineSegment(App.Vector(89, 227, 0), App.Vector(70, 227, 0)),  # 3
    Part.LineSegment(App.Vector(13, 227, 0), App.Vector(13, 221, 0)),  # 4
    Part.LineSegment(App.Vector(13, 221, 0), App.Vector(32, 221, 0)),  # 5
    Part.LineSegment(App.Vector(32, 221, 0), App.Vector(32, 227, 0)),  # 6
    Part.LineSegment(App.Vector(32, 227, 0), App.Vector(13, 227, 0)),  # 7
    Part.LineSegment(App.Vector(44, 227, 0), App.Vector(44, 221, 0)),  # 8
    Part.LineSegment(App.Vector(44, 221, 0), App.Vector(57, 221, 0)),  # 9
    Part.LineSegment(App.Vector(57, 221, 0), App.Vector(57, 227, 0)),  # 10
    Part.LineSegment(App.Vector(57, 227, 0), App.Vector(44, 227, 0)),  # 11
], False)
sketch4.addConstraint([
    Sketcher.Constraint("Coincident", 0, 2, 1, 1),
    Sketcher.Constraint("Coincident", 1, 2, 2, 1),
    Sketcher.Constraint("Coincident", 2, 2, 3, 1),
    Sketcher.Constraint("Coincident", 3, 2, 0, 1),
    Sketcher.Constraint("Coincident", 4, 2, 5, 1),
    Sketcher.Constraint("Coincident", 5, 2, 6, 1),
    Sketcher.Constraint("Coincident", 6, 2, 7, 1),
    Sketcher.Constraint("Coincident", 7, 2, 4, 1),
    Sketcher.Constraint("Coincident", 8, 2, 9, 1),
    Sketcher.Constraint("Coincident", 9, 2, 10, 1),
    Sketcher.Constraint("Coincident", 10, 2, 11, 1),
    Sketcher.Constraint("Coincident", 11, 2, 8, 1),
    Sketcher.Constraint("Vertical", 0),
    Sketcher.Constraint("Horizontal", 1),
    Sketcher.Constraint("Vertical", 2),
    Sketcher.Constraint("Horizontal", 3),
    Sketcher.Constraint("Vertical", 4),
    Sketcher.Constraint("Horizontal", 5),
    Sketcher.Constraint("Vertical", 6),
    Sketcher.Constraint("Horizontal", 7),
    Sketcher.Constraint("Vertical", 8),
    Sketcher.Constraint("Horizontal", 9),
    Sketcher.Constraint("Vertical", 10),
    Sketcher.Constraint("Horizontal", 11),
    Sketcher.Constraint("Horizontal", 1, 2, 4, 2),
    Sketcher.Constraint("Horizontal", 3, 2, 6, 2),
    Sketcher.Constraint("Horizontal", 5, 2, 8, 2),
    Sketcher.Constraint("Horizontal", 7, 2, 10, 2),
    Sketcher.Constraint("Equal", 3, 5),
    Sketcher.Constraint("DistanceX", 9, 1, 9, 2, Q("0.5 in")),
    Sketcher.Constraint("DistanceX", 4, 2, 1, 2, Q("3 in")),
    Sketcher.Constraint("DistanceX", 8, 2, 0, 2, Q("1 in")),
    Sketcher.Constraint("DistanceX", 5, 2, 9, 2, Q("1 in")),
    Sketcher.Constraint("DistanceY", 0, 2, 0, 1, Q("0.25 in")),
    Sketcher.Constraint("DistanceY", -1, 1, 0, 2, Q("8.7 in")),
    Sketcher.Constraint("DistanceX", -1, 1, 1, 2, Q("3.5 in")),
])
sketch4.setExpression("Constraints[29]", "Params.sketch4_width")
sketch4.setExpression("Constraints[33]", "Params.sketch4_height")
pocket2 = body.newObject("PartDesign::Pocket", "Pocket001")
pocket2.Profile = sketch4
pocket2.setExpression("Length", "Params.pocket2_length")

doc.recompute()
